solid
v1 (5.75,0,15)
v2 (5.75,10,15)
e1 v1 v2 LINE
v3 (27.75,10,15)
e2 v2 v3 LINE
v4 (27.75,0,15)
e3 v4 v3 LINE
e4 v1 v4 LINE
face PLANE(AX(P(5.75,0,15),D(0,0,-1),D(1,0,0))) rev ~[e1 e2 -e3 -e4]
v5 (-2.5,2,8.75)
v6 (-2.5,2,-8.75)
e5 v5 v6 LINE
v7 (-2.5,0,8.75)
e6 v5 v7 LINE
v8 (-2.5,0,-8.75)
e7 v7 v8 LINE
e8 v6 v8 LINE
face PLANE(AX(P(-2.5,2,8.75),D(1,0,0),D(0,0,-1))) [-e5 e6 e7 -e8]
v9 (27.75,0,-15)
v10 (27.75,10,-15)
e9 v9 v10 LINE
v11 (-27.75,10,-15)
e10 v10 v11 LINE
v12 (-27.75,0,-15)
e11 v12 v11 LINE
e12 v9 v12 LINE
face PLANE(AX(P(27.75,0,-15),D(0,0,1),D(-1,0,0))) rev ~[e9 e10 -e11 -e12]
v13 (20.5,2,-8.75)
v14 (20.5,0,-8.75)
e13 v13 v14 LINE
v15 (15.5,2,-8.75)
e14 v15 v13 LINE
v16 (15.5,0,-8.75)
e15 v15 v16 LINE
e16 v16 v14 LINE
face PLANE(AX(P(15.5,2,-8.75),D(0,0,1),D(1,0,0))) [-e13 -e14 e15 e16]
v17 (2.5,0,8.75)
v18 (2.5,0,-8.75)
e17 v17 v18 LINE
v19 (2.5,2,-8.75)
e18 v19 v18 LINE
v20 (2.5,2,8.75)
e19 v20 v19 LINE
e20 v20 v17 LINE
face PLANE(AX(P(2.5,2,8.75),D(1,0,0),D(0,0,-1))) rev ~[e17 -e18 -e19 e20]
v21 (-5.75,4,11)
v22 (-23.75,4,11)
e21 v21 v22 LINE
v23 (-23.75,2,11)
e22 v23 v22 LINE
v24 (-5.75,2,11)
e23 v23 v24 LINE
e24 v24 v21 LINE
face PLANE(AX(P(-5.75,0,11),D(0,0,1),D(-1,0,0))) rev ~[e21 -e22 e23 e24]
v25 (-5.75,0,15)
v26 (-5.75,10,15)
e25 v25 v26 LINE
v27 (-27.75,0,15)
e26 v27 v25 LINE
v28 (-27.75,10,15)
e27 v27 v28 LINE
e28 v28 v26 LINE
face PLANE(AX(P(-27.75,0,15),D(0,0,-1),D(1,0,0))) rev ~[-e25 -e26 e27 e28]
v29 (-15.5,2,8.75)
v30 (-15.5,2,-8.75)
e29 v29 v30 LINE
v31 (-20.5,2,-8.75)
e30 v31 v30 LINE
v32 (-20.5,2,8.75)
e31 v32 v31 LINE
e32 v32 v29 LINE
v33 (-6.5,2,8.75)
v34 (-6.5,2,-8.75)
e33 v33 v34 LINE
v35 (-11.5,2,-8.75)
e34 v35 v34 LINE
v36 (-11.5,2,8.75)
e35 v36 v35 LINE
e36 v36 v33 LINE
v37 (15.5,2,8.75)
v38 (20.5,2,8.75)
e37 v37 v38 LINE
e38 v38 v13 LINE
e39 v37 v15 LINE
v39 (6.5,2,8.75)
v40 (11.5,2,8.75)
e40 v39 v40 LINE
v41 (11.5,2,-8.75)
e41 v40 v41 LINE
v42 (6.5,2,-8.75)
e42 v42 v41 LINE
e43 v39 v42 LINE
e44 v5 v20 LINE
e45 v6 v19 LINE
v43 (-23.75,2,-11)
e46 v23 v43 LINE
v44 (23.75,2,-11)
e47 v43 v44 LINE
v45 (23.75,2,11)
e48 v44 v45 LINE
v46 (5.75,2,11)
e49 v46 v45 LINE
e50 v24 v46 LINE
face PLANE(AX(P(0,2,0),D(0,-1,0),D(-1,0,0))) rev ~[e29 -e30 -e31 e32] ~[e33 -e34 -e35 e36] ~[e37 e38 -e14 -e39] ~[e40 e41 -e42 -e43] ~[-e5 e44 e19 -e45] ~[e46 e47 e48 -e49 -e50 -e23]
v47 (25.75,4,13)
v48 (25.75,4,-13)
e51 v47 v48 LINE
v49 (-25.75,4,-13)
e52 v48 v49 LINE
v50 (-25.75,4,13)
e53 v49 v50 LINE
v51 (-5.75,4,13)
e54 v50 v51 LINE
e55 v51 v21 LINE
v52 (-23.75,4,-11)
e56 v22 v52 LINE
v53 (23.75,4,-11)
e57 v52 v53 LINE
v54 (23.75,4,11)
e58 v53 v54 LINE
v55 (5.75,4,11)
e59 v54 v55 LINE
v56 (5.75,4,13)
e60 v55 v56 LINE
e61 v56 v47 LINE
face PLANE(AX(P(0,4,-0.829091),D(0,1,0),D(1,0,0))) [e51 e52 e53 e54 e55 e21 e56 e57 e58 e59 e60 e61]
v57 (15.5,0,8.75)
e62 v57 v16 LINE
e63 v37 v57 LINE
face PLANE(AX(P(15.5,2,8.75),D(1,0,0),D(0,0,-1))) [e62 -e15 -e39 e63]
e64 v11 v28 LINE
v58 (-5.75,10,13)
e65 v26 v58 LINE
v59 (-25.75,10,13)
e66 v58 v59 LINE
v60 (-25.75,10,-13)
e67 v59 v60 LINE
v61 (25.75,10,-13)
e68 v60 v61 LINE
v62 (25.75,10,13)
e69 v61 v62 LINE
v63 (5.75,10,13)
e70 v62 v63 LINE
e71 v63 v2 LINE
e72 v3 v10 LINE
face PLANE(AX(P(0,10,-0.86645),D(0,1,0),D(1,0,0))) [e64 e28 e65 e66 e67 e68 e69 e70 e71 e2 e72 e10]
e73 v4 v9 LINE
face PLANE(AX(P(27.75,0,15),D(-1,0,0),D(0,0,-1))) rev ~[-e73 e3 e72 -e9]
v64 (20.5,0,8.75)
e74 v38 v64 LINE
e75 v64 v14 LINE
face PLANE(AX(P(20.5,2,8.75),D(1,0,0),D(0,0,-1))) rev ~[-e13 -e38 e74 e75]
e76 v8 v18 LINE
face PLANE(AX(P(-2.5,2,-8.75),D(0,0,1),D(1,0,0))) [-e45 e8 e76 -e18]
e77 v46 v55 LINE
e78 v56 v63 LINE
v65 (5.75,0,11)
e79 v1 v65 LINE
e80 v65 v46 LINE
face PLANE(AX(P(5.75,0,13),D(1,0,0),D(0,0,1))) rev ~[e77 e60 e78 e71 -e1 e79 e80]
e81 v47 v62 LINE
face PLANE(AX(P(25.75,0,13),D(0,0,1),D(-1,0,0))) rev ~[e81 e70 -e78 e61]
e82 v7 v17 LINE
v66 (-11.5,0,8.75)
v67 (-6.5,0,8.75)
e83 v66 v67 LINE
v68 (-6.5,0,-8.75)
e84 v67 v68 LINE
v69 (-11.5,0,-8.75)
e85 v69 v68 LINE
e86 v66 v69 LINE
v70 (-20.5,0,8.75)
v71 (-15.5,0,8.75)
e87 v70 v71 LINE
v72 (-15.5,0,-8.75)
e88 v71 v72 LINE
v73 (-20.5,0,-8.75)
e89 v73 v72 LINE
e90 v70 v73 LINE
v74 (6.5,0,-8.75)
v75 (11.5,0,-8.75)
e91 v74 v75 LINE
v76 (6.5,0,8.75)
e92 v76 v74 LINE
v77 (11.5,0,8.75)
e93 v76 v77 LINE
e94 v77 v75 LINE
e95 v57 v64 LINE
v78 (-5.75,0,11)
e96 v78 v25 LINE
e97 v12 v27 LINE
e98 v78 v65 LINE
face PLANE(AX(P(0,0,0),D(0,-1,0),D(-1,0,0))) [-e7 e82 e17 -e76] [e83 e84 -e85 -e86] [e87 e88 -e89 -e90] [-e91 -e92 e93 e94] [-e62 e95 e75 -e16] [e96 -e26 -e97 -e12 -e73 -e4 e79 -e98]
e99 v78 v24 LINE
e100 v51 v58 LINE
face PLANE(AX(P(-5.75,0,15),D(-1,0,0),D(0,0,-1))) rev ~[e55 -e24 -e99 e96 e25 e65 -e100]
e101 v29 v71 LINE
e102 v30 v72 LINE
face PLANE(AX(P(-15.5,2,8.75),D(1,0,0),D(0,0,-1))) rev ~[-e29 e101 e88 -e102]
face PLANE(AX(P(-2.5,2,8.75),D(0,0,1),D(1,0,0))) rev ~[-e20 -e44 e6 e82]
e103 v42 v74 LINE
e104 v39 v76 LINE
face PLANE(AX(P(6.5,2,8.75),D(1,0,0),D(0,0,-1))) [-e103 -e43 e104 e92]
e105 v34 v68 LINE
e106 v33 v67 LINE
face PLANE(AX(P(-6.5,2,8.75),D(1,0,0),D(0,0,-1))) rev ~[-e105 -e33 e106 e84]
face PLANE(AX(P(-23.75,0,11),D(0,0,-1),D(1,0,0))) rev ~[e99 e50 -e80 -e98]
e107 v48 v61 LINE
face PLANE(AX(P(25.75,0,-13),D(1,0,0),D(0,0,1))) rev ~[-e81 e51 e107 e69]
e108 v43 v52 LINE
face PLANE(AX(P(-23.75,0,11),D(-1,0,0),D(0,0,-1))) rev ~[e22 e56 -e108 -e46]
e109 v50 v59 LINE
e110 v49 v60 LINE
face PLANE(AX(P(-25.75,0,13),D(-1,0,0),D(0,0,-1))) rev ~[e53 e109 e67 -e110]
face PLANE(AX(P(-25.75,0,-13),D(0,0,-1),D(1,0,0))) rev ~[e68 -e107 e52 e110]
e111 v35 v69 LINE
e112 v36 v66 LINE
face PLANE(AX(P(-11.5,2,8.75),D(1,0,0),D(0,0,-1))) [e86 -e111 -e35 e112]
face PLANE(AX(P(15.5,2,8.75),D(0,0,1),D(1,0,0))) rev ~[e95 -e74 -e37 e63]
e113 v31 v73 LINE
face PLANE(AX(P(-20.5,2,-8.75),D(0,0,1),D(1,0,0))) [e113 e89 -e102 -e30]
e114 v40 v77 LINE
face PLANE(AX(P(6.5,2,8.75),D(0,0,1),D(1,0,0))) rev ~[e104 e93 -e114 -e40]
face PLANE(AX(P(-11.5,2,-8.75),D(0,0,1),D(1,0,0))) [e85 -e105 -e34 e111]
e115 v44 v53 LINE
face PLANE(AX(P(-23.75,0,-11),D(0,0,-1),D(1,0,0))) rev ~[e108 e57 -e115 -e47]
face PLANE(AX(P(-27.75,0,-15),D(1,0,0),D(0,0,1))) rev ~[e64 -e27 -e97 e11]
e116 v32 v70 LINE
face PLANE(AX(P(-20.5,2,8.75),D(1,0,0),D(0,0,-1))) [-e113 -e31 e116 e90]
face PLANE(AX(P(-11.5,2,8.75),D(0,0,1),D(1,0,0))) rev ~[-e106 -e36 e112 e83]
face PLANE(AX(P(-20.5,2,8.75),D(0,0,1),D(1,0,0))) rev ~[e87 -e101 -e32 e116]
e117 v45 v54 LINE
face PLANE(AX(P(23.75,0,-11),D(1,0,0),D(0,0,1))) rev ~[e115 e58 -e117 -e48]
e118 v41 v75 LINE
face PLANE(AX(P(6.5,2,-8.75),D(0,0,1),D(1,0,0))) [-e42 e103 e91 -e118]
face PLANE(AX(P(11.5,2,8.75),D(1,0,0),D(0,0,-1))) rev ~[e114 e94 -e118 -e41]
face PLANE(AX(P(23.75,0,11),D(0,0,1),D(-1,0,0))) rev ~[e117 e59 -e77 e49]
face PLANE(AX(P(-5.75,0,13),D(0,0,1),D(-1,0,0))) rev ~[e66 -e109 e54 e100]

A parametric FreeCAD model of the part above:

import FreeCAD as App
import Part
import Sketcher
from FreeCAD import Vector


def add_polygon(sketch, points):
    """Adds a closed chain of lines whose ends are joined by coincident constraints."""
    first, n = sketch.GeometryCount, len(points)
    for a, b in zip(points, points[1:] + points[:1]):
        sketch.addGeometry(Part.LineSegment(App.Vector(*a, 0), App.Vector(*b, 0)), False)
    for i in range(n):
        sketch.addConstraint(Sketcher.Constraint("Coincident", first + i, 2, first + (i + 1) % n, 1))

doc = App.newDocument("Part")
body = doc.addObject("PartDesign::Body", "Body")

# Sketch on XZ plane
sketch1 = doc.addObject("Sketcher::SketchObject", "Sketch")
body.addObject(sketch1)
sketch1.AttachmentSupport = (doc.XZ_Plane, [""])
sketch1.MapMode = "FlatFace"
add_polygon(sketch1, [(5.75, 11), (5.75, 13), (25.75, 13), (25.75, -13), (-25.75, -13), (-25.75, 13), (-5.75, 13), (-5.75, 11), (-23.75, 11), (-23.75, -11), (23.75, -11), (23.75, 11)])  # lines 0-11
sketch1.addConstraint([
    Sketcher.Constraint("Vertical", 0),
    Sketcher.Constraint("Horizontal", 1),
    Sketcher.Constraint("Vertical", 2),
    Sketcher.Constraint("Horizontal", 3),
    Sketcher.Constraint("Vertical", 4),
    Sketcher.Constraint("Horizontal", 5),
    Sketcher.Constraint("Vertical", 6),
    Sketcher.Constraint("Horizontal", 7),
    Sketcher.Constraint("Vertical", 8),
    Sketcher.Constraint("Horizontal", 9),
    Sketcher.Constraint("Vertical", 10),
    Sketcher.Constraint("Horizontal", 11),
    Sketcher.Constraint("Symmetric", 1, 2, 3, 2, -1, 1),
    Sketcher.Constraint("Symmetric", 7, 2, 9, 2, -1, 1),
    Sketcher.Constraint("Symmetric", 0, 2, 5, 2, -2),
    Sketcher.Constraint("Horizontal", 7, 2, 10, 2),
    Sketcher.Constraint("DistanceX", 1, 1, 1, 2, 20.0),
    Sketcher.Constraint("DistanceX", 7, 2, 7, 1, 18.0),
    Sketcher.Constraint("DistanceY", 0, 1, 0, 2, 2.0),
    Sketcher.Constraint("DistanceY", 2, 2, 2, 1, 26.0),
    Sketcher.Constraint("DistanceX", 3, 2, 3, 1, 51.5),
])
pad1 = doc.addObject("PartDesign::Pad", "Pad")
body.addObject(pad1)
pad1.Profile = sketch1
pad1.Length = 4
pad1.Reversed = True

# Sketch on XZ plane
sketch2 = doc.addObject("Sketcher::SketchObject", "Sketch001")
body.addObject(sketch2)
sketch2.AttachmentSupport = (doc.XZ_Plane, [""])
sketch2.MapMode = "FlatFace"
add_polygon(sketch2, [(27.75, 15), (27.75, -15), (-27.75, -15), (-27.75, 15), (-5.75, 15), (-5.75, 13), (-25.75, 13), (-25.75, -13), (25.75, -13), (25.75, 13), (5.75, 13), (5.75, 15)])  # lines 0-11
sketch2.addConstraint([
    Sketcher.Constraint("Vertical", 0),
    Sketcher.Constraint("Horizontal", 1),
    Sketcher.Constraint("Vertical", 2),
    Sketcher.Constraint("Horizontal", 3),
    Sketcher.Constraint("Vertical", 4),
    Sketcher.Constraint("Horizontal", 5),
    Sketcher.Constraint("Vertical", 6),
    Sketcher.Constraint("Horizontal", 7),
    Sketcher.Constraint("Vertical", 8),
    Sketcher.Constraint("Horizontal", 9),
    Sketcher.Constraint("Vertical", 10),
    Sketcher.Constraint("Horizontal", 11),
    Sketcher.Constraint("Symmetric", 0, 2, 2, 2, -1, 1),
    Sketcher.Constraint("Symmetric", 5, 2, 7, 2, -1, 1),
    Sketcher.Constraint("Symmetric", 4, 2, 9, 2, -2),
    Sketcher.Constraint("Horizontal", 3, 2, 10, 2),
    Sketcher.Constraint("DistanceX", 3, 1, 3, 2, 22.0),
    Sketcher.Constraint("DistanceX", 5, 2, 5, 1, 20.0),
    Sketcher.Constraint("DistanceY", 0, 2, 0, 1, 30.0),
    Sketcher.Constraint("DistanceY", 4, 2, 4, 1, 2.0),
    Sketcher.Constraint("DistanceX", 1, 2, 1, 1, 55.5),
])
pad2 = doc.addObject("PartDesign::Pad", "Pad001")
body.addObject(pad2)
pad2.Profile = sketch2
pad2.Length = 10
pad2.Reversed = True

# Sketch on XZ plane
sketch3 = doc.addObject("Sketcher::SketchObject", "Sketch002")
body.addObject(sketch3)
sketch3.AttachmentSupport = (doc.XZ_Plane, [""])
sketch3.MapMode = "FlatFace"
add_polygon(sketch3, [(-23.75, 11), (23.75, 11), (23.75, -11), (-23.75, -11)])  # lines 0-3
sketch3.addConstraint([
    Sketcher.Constraint("Horizontal", 0),
    Sketcher.Constraint("Vertical", 1),
    Sketcher.Constraint("Horizontal", 2),
    Sketcher.Constraint("Vertical", 3),
    Sketcher.Constraint("Symmetric", 0, 2, 2, 2, -1, 1),
    Sketcher.Constraint("DistanceY", 1, 2, 1, 1, 22.0),
    Sketcher.Constraint("DistanceX", 0, 1, 0, 2, 47.5),
])
pad3 = doc.addObject("PartDesign::Pad", "Pad002")
body.addObject(pad3)
pad3.Profile = sketch3
pad3.Length = 2
pad3.Reversed = True

# Sketch on XZ plane
sketch4 = doc.addObject("Sketcher::SketchObject", "Sketch003")
body.addObject(sketch4)
sketch4.AttachmentSupport = (doc.XZ_Plane, [""])
sketch4.MapMode = "FlatFace"
sketch4.AttachmentOffset = App.Placement(Vector(0, 0, -2), App.Rotation())
add_polygon(sketch4, [(6.5, -8.75), (6.5, 8.75), (11.5, 8.75), (11.5, -8.75)])  # lines 0-3
add_polygon(sketch4, [(-2.5, -8.75), (-2.5, 8.75), (2.5, 8.75), (2.5, -8.75)])  # lines 4-7
add_polygon(sketch4, [(15.5, -8.75), (15.5, 8.75), (20.5, 8.75), (20.5, -8.75)])  # lines 8-11
add_polygon(sketch4, [(-11.5, -8.75), (-11.5, 8.75), (-6.5, 8.75), (-6.5, -8.75)])  # lines 12-15
add_polygon(sketch4, [(-20.5, -8.75), (-20.5, 8.75), (-15.5, 8.75), (-15.5, -8.75)])  # lines 16-19
sketch4.addConstraint([
    Sketcher.Constraint("Vertical", 0),
    Sketcher.Constraint("Horizontal", 1),
    Sketcher.Constraint("Vertical", 2),
    Sketcher.Constraint("Horizontal", 3),
    Sketcher.Constraint("Vertical", 4),
    Sketcher.Constraint("Horizontal", 5),
    Sketcher.Constraint("Vertical", 6),
    Sketcher.Constraint("Horizontal", 7),
    Sketcher.Constraint("Vertical", 8),
    Sketcher.Constraint("Horizontal", 9),
    Sketcher.Constraint("Vertical", 10),
    Sketcher.Constraint("Horizontal", 11),
    Sketcher.Constraint("Vertical", 12),
    Sketcher.Constraint("Horizontal", 13),
    Sketcher.Constraint("Vertical", 14),
    Sketcher.Constraint("Horizontal", 15),
    Sketcher.Constraint("Vertical", 16),
    Sketcher.Constraint("Horizontal", 17),
    Sketcher.Constraint("Vertical", 18),
    Sketcher.Constraint("Horizontal", 19),
    Sketcher.Constraint("Symmetric", 4, 2, 6, 2, -1, 1),
    Sketcher.Constraint("Symmetric", 2, 2, 12, 2, -1, 1),
    Sketcher.Constraint("Symmetric", 0, 2, 14, 2, -1, 1),
    Sketcher.Constraint("Symmetric", 10, 2, 16, 2, -1, 1),
    Sketcher.Constraint("Symmetric", 8, 2, 18, 2, -1, 1),
    Sketcher.Constraint("Horizontal", 1, 2, 4, 2),
    Sketcher.Constraint("Horizontal", 3, 2, 6, 2),
    Sketcher.Constraint("Horizontal", 5, 2, 8, 2),
    Sketcher.Constraint("Horizontal", 7, 2, 10, 2),
    Sketcher.Constraint("Equal", 3, 5),
    Sketcher.Constraint("Equal", 7, 9),
    Sketcher.Constraint("DistanceX", 1, 1, 1, 2, 5.0),
    Sketcher.Constraint("DistanceY", 0, 1, 0, 2, 17.5),
    Sketcher.Constraint("DistanceX", 4, 2, 0, 2, 9.0),
    Sketcher.Constraint("DistanceX", 1, 2, 8, 2, 4.0),
])
pocket1 = doc.addObject("PartDesign::Pocket", "Pocket")
body.addObject(pocket1)
pocket1.Profile = sketch4
pocket1.Length = 2
pocket1.Reversed = True

doc.recompute()
